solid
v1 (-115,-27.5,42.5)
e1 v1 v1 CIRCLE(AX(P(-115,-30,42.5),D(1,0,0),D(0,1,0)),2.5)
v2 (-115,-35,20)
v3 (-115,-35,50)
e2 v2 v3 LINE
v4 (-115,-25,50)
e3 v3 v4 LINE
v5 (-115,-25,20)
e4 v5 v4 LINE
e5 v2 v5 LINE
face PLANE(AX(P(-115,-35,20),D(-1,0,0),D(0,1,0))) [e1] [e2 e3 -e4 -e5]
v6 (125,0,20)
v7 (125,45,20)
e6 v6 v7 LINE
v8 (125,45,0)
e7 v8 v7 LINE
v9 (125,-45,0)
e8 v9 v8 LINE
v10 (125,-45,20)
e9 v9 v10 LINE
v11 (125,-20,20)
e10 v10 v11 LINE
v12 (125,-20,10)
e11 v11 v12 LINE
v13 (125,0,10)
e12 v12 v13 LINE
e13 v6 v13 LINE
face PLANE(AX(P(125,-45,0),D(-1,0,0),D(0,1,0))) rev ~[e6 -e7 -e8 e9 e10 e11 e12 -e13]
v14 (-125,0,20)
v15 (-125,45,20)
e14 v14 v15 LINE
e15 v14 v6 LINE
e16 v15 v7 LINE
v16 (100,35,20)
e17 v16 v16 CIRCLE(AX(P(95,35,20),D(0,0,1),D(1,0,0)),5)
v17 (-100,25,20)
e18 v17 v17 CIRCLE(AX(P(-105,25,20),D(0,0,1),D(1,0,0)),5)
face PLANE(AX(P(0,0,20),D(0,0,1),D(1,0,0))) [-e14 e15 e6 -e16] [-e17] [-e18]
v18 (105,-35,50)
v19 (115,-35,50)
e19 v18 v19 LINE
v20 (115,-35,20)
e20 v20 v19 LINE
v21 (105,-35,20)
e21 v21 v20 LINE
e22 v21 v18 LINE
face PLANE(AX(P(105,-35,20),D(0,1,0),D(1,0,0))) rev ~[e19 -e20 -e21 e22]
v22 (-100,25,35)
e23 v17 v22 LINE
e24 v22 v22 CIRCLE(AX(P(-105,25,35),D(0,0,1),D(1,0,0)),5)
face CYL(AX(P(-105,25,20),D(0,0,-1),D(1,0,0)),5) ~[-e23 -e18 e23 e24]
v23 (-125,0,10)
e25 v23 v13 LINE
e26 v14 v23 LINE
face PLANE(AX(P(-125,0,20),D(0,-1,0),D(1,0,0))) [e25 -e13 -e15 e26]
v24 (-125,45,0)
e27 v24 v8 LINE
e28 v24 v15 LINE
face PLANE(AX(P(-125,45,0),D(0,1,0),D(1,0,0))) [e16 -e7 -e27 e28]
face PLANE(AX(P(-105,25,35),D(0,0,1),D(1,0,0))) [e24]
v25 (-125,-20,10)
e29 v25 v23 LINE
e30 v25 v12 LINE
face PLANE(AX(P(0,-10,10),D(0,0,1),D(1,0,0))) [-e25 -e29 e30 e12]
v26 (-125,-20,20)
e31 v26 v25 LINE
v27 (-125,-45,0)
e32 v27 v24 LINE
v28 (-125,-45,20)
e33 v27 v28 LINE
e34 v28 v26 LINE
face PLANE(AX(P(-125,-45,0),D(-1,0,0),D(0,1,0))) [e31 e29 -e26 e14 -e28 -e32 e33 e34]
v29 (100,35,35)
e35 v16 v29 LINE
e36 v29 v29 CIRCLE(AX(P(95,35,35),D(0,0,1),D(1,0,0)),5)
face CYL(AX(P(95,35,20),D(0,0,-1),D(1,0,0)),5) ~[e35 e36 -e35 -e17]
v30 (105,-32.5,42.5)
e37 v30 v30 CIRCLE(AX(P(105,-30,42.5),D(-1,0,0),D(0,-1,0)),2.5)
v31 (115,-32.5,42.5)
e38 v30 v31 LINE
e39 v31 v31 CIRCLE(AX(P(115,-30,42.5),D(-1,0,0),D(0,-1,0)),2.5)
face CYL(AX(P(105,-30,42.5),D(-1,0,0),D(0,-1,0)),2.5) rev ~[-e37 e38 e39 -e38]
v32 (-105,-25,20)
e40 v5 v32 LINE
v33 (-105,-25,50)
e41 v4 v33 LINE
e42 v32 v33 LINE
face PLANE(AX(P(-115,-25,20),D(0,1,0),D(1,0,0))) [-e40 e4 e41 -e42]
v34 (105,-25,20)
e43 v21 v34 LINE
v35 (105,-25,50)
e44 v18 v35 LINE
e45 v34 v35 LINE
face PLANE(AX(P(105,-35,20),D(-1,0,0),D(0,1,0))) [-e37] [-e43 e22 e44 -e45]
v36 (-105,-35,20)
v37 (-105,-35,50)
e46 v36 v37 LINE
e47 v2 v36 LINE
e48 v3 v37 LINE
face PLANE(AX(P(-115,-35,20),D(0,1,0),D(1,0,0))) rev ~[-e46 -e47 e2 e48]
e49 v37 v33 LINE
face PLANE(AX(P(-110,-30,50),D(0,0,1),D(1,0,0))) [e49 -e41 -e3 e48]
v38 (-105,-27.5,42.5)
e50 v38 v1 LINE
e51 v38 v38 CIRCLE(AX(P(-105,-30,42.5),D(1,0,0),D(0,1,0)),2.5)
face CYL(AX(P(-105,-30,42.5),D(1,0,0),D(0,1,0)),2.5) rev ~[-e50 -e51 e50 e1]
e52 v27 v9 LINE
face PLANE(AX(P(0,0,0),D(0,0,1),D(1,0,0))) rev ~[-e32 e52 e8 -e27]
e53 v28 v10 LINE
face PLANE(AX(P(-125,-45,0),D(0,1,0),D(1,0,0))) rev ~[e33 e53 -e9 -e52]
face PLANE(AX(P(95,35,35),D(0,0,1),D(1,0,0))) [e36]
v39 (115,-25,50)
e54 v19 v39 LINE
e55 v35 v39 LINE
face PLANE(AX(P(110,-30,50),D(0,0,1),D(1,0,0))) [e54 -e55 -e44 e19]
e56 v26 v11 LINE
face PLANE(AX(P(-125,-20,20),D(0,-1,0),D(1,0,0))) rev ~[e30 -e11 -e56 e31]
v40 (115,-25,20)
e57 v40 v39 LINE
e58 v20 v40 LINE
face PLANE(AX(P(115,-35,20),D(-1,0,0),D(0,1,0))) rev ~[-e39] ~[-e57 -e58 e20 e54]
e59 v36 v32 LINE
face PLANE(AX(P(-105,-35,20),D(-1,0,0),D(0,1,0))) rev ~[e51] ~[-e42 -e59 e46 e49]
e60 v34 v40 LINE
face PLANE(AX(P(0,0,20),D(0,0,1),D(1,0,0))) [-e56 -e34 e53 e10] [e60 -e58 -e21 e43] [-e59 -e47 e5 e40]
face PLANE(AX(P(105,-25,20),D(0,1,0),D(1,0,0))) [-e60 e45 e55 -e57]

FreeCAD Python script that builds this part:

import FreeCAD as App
import Part
import Sketcher
from FreeCAD import Vector
Q = App.Units.Quantity


def add_polygon(sketch, points):
    """Adds a closed chain of lines whose ends are joined by coincident constraints."""
    first, n = sketch.GeometryCount, len(points)
    for a, b in zip(points, points[1:] + points[:1]):
        sketch.addGeometry(Part.LineSegment(App.Vector(*a, 0), App.Vector(*b, 0)), False)
    for i in range(n):
        sketch.addConstraint(Sketcher.Constraint("Coincident", first + i, 2, first + (i + 1) % n, 1))

doc = App.newDocument("Part")
body = doc.addObject("PartDesign::Body", "Body")

# Sketch on XY plane
sketch1 = body.newObject("Sketcher::SketchObject", "Sketch")
sketch1.AttachmentSupport = (doc.getObject("XY_Plane"), [""])
sketch1.MapMode = "FlatFace"
add_polygon(sketch1, [(-125, 45), (-125, -45), (125, -45), (125, 45)])  # lines 0-3
sketch1.addConstraint(Sketcher.Constraint("Vertical", 0))
sketch1.addConstraint(Sketcher.Constraint("Horizontal", 1))
sketch1.addConstraint(Sketcher.Constraint("Vertical", 2))
sketch1.addConstraint(Sketcher.Constraint("Horizontal", 3))
sketch1.addConstraint(Sketcher.Constraint("Symmetric", 0, 2, 2, 2, -1, 1))
sketch1.addConstraint(Sketcher.Constraint("DistanceX", 1, 1, 1, 2, Q("250 mm")))
sketch1.addConstraint(Sketcher.Constraint("DistanceY", 0, 2, 0, 1, Q("90 mm")))
pad1 = body.newObject("PartDesign::Pad", "Pad")
pad1.Profile = sketch1
pad1.Length = 20

# Sketch on XY plane
sketch2 = body.newObject("Sketcher::SketchObject", "Sketch001")
sketch2.AttachmentSupport = (doc.getObject("XY_Plane"), [""])
sketch2.MapMode = "FlatFace"
sketch2.AttachmentOffset = App.Placement(Vector(0, 0, 20), App.Rotation())
sketch2.addGeometry(Part.Circle(Vector(95, 35, 0), Vector(0, 0, 1), 5), False)
sketch2.addGeometry(Part.Circle(Vector(-105, 25, 0), Vector(0, 0, 1), 5), False)
sketch2.addConstraint(Sketcher.Constraint("Equal", 0, 1))
sketch2.addConstraint(Sketcher.Constraint("Diameter", 0, Q("10 mm")))
sketch2.addConstraint(Sketcher.Constraint("DistanceX", -1, 1, 0, 3, Q("95 mm")))
sketch2.addConstraint(Sketcher.Constraint("DistanceY", -1, 1, 0, 3, Q("35 mm")))
sketch2.addConstraint(Sketcher.Constraint("DistanceX", 1, 3, -1, 1, Q("105 mm")))
sketch2.addConstraint(Sketcher.Constraint("DistanceY", -1, 1, 1, 3, Q("25 mm")))
pad2 = body.newObject("PartDesign::Pad", "Pad001")
pad2.Profile = sketch2
pad2.Length = 15

# Sketch on XY plane
sketch3 = body.newObject("Sketcher::SketchObject", "Sketch002")
sketch3.AttachmentSupport = (doc.getObject("XY_Plane"), [""])
sketch3.MapMode = "FlatFace"
sketch3.AttachmentOffset = App.Placement(Vector(0, 0, 20), App.Rotation())
add_polygon(sketch3, [(-125, 0), (-125, -20), (125, -20), (125, 0)])  # lines 0-3
sketch3.addConstraint(Sketcher.Constraint("Vertical", 0))
sketch3.addConstraint(Sketcher.Constraint("Horizontal", 1))
sketch3.addConstraint(Sketcher.Constraint("Vertical", 2))
sketch3.addConstraint(Sketcher.Constraint("Horizontal", 3))
sketch3.addConstraint(Sketcher.Constraint("Symmetric", 2, 2, 3, 2, -1, 1))
sketch3.addConstraint(Sketcher.Constraint("DistanceX", 1, 1, 1, 2, Q("250 mm")))
sketch3.addConstraint(Sketcher.Constraint("DistanceY", 0, 2, 0, 1, Q("20 mm")))
pocket1 = body.newObject("PartDesign::Pocket", "Pocket")
pocket1.Profile = sketch3
pocket1.Length = 10

# Sketch on XY plane
sketch4 = body.newObject("Sketcher::SketchObject", "Sketch003")
sketch4.AttachmentSupport = (doc.getObject("XY_Plane"), [""])
sketch4.MapMode = "FlatFace"
sketch4.AttachmentOffset = App.Placement(Vector(0, 0, 20), App.Rotation())
add_polygon(sketch4, [(-115, -25), (-115, -35), (-105, -35), (-105, -25)])  # lines 0-3
add_polygon(sketch4, [(105, -25), (105, -35), (115, -35), (115, -25)])  # lines 4-7
sketch4.addConstraint(Sketcher.Constraint("Vertical", 0))
sketch4.addConstraint(Sketcher.Constraint("Horizontal", 1))
sketch4.addConstraint(Sketcher.Constraint("Vertical", 2))
sketch4.addConstraint(Sketcher.Constraint("Horizontal", 3))
sketch4.addConstraint(Sketcher.Constraint("Vertical", 4))
sketch4.addConstraint(Sketcher.Constraint("Horizontal", 5))
sketch4.addConstraint(Sketcher.Constraint("Vertical", 6))
sketch4.addConstraint(Sketcher.Constraint("Horizontal", 7))
sketch4.addConstraint(Sketcher.Constraint("Symmetric", 1, 2, 4, 2, -2))
sketch4.addConstraint(Sketcher.Constraint("Symmetric", 3, 2, 6, 2, -2))
sketch4.addConstraint(Sketcher.Constraint("Equal", 7, 0))
sketch4.addConstraint(Sketcher.Constraint("DistanceX", 1, 1, 1, 2, Q("10 mm")))
sketch4.addConstraint(Sketcher.Constraint("DistanceX", 0, 2, -1, 1, Q("115 mm")))
sketch4.addConstraint(Sketcher.Constraint("DistanceY", 0, 2, -1, 1, Q("35 mm")))
pad3 = body.newObject("PartDesign::Pad", "Pad002")
pad3.Profile = sketch4
pad3.Length = 30

# Sketch on YZ plane
sketch5 = body.newObject("Sketcher::SketchObject", "Sketch004")
sketch5.AttachmentSupport = (doc.getObject("YZ_Plane"), [""])
sketch5.MapMode = "FlatFace"
sketch5.AttachmentOffset = App.Placement(Vector(0, 0, -105), App.Rotation())
sketch5.addGeometry(Part.Circle(Vector(-30, 42.5, 0), Vector(0, 0, 1), 2.5), False)
sketch5.addConstraint(Sketcher.Constraint("Diameter", 0, Q("5 mm")))
sketch5.addConstraint(Sketcher.Constraint("DistanceX", 0, 3, -1, 1, Q("30 mm")))
sketch5.addConstraint(Sketcher.Constraint("DistanceY", -1, 1, 0, 3, Q("42.5 mm")))
pocket2 = body.newObject("PartDesign::Pocket", "Pocket001")
pocket2.Profile = sketch5
pocket2.Type = "ThroughAll"

# Sketch on YZ plane
sketch6 = body.newObject("Sketcher::SketchObject", "Sketch005")
sketch6.AttachmentSupport = (doc.getObject("YZ_Plane"), [""])
sketch6.MapMode = "FlatFace"
sketch6.AttachmentOffset = App.Placement(Vector(0, 0, 105), App.Rotation())
sketch6.addGeometry(Part.Circle(Vector(-30, 42.5, 0), Vector(0, 0, 1), 2.5), False)
sketch6.addConstraint(Sketcher.Constraint("Diameter", 0, Q("5 mm")))
sketch6.addConstraint(Sketcher.Constraint("DistanceX", 0, 3, -1, 1, Q("30 mm")))
sketch6.addConstraint(Sketcher.Constraint("DistanceY", -1, 1, 0, 3, Q("42.5 mm")))
pocket3 = body.newObject("PartDesign::Pocket", "Pocket002")
pocket3.Profile = sketch6
pocket3.Type = "ThroughAll"
pocket3.Reversed = True

doc.recompute()
